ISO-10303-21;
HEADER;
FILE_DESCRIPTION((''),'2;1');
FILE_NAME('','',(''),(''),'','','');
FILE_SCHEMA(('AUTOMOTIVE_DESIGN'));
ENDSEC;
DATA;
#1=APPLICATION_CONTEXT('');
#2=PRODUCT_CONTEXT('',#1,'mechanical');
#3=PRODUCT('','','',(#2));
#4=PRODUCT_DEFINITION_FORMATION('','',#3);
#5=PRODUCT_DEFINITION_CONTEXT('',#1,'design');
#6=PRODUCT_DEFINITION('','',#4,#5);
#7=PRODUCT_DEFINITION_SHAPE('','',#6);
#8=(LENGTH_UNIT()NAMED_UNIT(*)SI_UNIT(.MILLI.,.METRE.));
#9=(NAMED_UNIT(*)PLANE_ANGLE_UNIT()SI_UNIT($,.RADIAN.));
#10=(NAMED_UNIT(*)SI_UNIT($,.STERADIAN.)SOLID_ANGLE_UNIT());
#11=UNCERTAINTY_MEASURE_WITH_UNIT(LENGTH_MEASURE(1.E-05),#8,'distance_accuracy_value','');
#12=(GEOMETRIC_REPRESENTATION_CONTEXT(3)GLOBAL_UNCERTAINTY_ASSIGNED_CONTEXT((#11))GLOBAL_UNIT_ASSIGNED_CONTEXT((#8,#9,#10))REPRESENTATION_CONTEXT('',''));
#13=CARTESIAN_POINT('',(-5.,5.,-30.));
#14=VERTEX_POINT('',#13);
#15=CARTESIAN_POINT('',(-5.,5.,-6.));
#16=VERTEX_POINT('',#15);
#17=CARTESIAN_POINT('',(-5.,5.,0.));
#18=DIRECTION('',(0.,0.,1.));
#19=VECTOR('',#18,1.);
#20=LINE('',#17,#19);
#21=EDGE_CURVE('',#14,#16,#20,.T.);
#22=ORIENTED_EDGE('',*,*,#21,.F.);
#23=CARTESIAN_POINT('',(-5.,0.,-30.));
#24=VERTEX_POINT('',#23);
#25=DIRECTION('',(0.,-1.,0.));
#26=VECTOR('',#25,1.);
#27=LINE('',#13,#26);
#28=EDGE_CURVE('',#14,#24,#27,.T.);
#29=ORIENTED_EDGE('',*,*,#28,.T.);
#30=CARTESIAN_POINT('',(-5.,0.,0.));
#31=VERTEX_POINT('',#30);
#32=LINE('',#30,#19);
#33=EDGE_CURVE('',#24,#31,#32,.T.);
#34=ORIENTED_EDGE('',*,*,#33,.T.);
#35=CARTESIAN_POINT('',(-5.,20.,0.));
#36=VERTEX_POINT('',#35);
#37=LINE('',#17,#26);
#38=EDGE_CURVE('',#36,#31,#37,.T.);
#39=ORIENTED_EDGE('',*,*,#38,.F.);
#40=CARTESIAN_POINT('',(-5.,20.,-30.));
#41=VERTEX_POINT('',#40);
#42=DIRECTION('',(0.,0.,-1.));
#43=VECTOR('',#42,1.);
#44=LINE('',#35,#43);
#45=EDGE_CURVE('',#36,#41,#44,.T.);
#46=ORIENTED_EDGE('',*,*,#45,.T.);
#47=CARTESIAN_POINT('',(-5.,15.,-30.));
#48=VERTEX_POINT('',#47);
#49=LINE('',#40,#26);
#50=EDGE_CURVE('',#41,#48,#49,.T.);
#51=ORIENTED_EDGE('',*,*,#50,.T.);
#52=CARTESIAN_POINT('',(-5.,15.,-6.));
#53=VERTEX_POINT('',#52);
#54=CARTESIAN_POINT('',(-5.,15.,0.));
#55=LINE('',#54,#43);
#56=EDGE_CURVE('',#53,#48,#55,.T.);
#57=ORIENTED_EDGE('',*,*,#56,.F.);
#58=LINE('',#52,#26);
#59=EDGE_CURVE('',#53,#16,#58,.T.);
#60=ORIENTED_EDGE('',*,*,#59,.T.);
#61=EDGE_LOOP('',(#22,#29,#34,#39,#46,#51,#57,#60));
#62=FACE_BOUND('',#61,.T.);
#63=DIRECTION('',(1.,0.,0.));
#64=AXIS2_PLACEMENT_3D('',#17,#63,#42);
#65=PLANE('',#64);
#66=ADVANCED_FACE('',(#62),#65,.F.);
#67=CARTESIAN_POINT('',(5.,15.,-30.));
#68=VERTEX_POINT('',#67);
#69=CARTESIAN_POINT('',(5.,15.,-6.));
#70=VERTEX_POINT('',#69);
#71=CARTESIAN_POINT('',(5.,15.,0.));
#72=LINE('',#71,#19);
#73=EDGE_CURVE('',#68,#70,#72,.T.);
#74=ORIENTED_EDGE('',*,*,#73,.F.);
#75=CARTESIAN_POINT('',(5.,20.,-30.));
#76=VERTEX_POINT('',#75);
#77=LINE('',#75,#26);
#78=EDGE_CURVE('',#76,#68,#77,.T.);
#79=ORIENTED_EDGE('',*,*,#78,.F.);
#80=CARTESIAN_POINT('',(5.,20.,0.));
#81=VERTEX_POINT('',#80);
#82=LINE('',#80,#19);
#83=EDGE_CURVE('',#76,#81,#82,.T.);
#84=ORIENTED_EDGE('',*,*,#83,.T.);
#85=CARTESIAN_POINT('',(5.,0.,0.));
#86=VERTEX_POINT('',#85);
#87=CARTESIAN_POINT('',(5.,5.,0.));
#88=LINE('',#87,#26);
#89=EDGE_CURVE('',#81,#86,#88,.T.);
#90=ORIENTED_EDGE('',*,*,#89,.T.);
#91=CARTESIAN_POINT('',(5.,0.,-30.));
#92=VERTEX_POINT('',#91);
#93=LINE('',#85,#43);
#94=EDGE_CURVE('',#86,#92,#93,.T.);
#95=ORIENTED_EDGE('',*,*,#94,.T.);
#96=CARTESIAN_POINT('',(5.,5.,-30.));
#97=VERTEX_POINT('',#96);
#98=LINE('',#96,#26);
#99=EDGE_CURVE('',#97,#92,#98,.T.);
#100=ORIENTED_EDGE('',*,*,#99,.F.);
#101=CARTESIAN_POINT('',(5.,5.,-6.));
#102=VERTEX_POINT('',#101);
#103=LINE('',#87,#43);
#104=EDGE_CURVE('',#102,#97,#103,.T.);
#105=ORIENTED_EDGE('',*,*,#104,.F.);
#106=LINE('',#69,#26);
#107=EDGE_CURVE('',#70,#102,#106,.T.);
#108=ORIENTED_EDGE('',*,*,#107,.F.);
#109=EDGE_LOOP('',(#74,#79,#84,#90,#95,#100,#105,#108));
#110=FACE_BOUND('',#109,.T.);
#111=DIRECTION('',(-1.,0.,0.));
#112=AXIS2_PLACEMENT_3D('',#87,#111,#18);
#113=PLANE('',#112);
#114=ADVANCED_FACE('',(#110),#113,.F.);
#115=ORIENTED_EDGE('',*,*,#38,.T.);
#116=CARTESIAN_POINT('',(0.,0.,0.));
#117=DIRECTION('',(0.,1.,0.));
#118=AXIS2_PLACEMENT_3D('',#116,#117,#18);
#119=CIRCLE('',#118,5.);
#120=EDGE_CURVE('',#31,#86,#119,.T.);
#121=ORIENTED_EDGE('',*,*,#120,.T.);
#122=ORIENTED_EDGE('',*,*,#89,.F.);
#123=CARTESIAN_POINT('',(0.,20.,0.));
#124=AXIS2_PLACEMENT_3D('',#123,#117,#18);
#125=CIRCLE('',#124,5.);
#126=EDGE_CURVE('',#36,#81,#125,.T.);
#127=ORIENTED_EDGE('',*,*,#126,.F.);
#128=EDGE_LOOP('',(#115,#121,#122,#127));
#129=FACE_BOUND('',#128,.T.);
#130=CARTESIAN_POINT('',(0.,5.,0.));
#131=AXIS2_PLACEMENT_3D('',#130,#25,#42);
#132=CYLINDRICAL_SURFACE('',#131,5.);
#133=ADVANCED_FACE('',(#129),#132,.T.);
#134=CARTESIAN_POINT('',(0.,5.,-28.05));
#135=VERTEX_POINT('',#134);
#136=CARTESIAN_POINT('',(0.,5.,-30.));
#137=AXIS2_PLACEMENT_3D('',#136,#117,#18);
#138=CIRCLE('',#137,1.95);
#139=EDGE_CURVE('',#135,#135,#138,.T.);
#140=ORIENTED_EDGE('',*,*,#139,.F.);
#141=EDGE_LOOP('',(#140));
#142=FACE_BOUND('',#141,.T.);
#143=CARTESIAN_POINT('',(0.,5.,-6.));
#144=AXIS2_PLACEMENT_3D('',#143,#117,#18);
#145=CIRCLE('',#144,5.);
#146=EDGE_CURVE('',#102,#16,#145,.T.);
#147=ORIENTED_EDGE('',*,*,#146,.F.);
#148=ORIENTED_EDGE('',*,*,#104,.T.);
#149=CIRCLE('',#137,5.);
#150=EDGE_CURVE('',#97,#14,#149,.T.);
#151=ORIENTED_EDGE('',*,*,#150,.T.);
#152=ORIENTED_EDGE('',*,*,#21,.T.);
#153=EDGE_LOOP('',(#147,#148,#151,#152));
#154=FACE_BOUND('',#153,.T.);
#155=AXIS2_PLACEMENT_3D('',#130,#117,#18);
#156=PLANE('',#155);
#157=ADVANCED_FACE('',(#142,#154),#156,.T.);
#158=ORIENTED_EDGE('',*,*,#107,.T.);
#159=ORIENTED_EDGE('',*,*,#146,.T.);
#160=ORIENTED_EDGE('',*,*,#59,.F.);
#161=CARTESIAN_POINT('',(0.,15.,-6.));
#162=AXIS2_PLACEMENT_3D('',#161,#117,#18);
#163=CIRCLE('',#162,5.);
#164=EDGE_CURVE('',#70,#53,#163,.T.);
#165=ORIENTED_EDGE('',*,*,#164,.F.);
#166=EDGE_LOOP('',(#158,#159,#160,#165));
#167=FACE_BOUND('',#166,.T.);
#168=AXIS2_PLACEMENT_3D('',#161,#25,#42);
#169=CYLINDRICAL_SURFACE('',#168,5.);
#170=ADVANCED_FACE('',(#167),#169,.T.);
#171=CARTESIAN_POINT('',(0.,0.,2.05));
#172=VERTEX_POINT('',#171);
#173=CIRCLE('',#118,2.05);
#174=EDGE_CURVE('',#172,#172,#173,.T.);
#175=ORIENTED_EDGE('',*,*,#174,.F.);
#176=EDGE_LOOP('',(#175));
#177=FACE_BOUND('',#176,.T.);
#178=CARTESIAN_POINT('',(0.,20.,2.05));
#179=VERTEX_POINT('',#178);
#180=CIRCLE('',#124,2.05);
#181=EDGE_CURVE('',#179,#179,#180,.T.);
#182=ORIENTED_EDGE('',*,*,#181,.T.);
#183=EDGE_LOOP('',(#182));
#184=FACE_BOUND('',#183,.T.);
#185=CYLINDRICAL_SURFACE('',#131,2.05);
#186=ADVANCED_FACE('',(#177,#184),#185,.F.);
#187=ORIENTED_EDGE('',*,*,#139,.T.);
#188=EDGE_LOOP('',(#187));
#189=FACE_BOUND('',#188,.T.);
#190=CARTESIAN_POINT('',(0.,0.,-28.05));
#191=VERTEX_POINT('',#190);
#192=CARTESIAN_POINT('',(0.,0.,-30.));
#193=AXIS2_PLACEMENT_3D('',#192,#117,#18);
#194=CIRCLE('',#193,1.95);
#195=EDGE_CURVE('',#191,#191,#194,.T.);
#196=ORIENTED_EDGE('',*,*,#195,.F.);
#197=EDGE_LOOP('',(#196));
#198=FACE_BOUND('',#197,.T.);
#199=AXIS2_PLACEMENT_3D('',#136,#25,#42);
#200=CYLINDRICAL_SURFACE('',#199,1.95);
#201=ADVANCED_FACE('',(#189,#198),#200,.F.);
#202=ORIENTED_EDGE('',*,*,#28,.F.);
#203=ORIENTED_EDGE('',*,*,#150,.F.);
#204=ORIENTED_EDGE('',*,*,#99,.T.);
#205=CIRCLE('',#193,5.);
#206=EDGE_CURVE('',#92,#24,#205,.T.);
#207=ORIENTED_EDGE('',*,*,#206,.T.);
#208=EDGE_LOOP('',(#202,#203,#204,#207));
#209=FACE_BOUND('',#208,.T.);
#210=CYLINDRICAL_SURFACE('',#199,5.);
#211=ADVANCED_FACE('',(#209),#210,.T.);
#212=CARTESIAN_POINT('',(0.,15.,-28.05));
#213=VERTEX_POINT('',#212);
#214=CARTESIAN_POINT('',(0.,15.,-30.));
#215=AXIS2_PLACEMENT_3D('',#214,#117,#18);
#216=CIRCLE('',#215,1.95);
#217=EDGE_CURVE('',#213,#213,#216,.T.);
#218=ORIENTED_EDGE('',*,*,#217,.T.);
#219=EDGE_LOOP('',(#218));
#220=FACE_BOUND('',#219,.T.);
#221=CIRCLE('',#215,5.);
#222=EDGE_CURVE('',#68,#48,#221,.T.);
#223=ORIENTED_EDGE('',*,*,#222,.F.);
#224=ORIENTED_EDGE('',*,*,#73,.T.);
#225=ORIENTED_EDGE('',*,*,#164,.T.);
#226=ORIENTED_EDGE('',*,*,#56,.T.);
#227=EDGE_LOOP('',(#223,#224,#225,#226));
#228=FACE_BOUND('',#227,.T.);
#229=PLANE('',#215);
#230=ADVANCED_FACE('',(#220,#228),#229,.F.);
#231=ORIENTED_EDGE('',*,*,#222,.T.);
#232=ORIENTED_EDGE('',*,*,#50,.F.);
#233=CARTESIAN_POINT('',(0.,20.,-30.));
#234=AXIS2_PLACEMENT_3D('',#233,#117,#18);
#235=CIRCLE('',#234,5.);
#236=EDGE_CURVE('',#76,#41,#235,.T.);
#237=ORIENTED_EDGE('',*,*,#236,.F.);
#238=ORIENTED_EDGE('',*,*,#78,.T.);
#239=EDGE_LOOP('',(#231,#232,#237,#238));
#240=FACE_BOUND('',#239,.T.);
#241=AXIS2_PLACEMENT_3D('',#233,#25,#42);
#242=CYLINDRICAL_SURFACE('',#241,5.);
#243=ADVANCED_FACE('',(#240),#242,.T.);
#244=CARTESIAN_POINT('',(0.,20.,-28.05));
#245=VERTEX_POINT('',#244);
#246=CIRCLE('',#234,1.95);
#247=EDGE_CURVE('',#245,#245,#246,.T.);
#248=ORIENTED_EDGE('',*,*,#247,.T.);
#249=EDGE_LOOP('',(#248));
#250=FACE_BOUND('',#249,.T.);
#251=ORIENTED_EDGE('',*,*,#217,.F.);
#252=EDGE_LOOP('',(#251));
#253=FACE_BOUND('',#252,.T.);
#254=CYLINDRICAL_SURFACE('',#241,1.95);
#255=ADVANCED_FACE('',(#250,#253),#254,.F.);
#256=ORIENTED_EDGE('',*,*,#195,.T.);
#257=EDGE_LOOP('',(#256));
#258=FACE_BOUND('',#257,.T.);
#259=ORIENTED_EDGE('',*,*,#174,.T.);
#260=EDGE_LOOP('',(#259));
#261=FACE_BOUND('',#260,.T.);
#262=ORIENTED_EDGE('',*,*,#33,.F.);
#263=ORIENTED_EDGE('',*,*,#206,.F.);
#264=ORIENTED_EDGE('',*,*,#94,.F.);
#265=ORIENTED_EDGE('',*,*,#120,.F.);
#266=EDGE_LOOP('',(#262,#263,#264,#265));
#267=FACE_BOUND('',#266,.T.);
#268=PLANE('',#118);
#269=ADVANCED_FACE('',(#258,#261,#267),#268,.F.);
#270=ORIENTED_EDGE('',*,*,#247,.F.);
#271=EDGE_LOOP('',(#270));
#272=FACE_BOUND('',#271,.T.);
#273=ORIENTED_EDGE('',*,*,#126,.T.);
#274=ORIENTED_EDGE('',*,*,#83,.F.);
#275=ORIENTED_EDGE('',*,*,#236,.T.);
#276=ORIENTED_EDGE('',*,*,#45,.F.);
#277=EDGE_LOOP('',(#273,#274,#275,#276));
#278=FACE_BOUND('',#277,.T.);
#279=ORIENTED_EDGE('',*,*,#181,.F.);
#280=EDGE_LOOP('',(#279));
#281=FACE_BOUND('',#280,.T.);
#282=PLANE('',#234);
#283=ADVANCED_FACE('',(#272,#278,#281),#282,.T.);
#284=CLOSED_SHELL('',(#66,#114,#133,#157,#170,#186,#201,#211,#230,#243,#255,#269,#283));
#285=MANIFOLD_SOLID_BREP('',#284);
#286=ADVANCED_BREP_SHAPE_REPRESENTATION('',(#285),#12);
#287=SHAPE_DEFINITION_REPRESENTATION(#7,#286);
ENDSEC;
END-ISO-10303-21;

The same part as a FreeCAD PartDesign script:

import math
import FreeCAD as App
import Part
import Sketcher
from FreeCAD import Vector

doc = App.newDocument("Part")
body = doc.addObject("PartDesign::Body", "Body")

sketch1 = body.newObject("Sketcher::SketchObject", "Sketch")
sketch1.AttachmentSupport = (doc.getObject("XZ_Plane"), [""])
sketch1.MapMode = "FlatFace"
sketch1.addGeometry(Part.LineSegment(Vector(-5, -30, 0), Vector(-5, 0, 0)), False)
sketch1.addGeometry(Part.ArcOfCircle(Part.Circle(Vector(0, 0, 0), Vector(0, 0, 1), 5), math.radians(0), math.radians(180)), False)
sketch1.addGeometry(Part.LineSegment(Vector(5, 0, 0), Vector(5, -30, 0)), False)
sketch1.addGeometry(Part.ArcOfCircle(Part.Circle(Vector(0, -30, 0), Vector(0, 0, 1), 5), math.radians(180), math.radians(360)), False)
sketch1.addGeometry(Part.Circle(Vector(0, 0, 0), Vector(0, 0, 1), 2.05), False)
sketch1.addGeometry(Part.Circle(Vector(0, -30, 0), Vector(0, 0, 1), 1.95), False)
sketch1.addConstraint(Sketcher.Constraint("Tangent", 0, 2, 1, 2))
sketch1.addConstraint(Sketcher.Constraint("Tangent", 1, 1, 2, 1))
sketch1.addConstraint(Sketcher.Constraint("Tangent", 2, 2, 3, 2))
sketch1.addConstraint(Sketcher.Constraint("Tangent", 3, 1, 0, 1))
sketch1.addConstraint(Sketcher.Constraint("Vertical", 0))
sketch1.addConstraint(Sketcher.Constraint("Vertical", 2))
sketch1.addConstraint(Sketcher.Constraint("Coincident", 1, 3, -1, 1))
sketch1.addConstraint(Sketcher.Constraint("Coincident", 4, 3, -1, 1))
sketch1.addConstraint(Sketcher.Constraint("Coincident", 5, 3, 3, 3))
sketch1.addConstraint(Sketcher.Constraint("Radius", 1, 5.0))
sketch1.addConstraint(Sketcher.Constraint("Diameter", 4, 4.1))
sketch1.addConstraint(Sketcher.Constraint("Diameter", 5, 3.9))
sketch1.addConstraint(Sketcher.Constraint("DistanceY", 0, 1, 0, 2, 30.0))
pad1 = body.newObject("PartDesign::Pad", "Pad")
pad1.Profile = sketch1
pad1.Length = 5
pad1.Reversed = True

sketch2 = body.newObject("Sketcher::SketchObject", "Sketch001")
sketch2.AttachmentSupport = (doc.getObject("XZ_Plane"), [""])
sketch2.MapMode = "FlatFace"
sketch2.AttachmentOffset = App.Placement(Vector(0, 0, -5), App.Rotation())
sketch2.addGeometry(Part.LineSegment(Vector(-5, -6, 0), Vector(-5, 0, 0)), False)
sketch2.addGeometry(Part.ArcOfCircle(Part.Circle(Vector(0, 0, 0), Vector(0, 0, 1), 5), math.radians(0), math.radians(180)), False)
sketch2.addGeometry(Part.LineSegment(Vector(5, 0, 0), Vector(5, -6, 0)), False)
sketch2.addGeometry(Part.ArcOfCircle(Part.Circle(Vector(0, -6, 0), Vector(0, 0, 1), 5), math.radians(180), math.radians(360)), False)
sketch2.addGeometry(Part.Circle(Vector(0, 0, 0), Vector(0, 0, 1), 2.05), False)
sketch2.addConstraint(Sketcher.Constraint("Tangent", 0, 2, 1, 2))
sketch2.addConstraint(Sketcher.Constraint("Tangent", 1, 1, 2, 1))
sketch2.addConstraint(Sketcher.Constraint("Tangent", 2, 2, 3, 2))
sketch2.addConstraint(Sketcher.Constraint("Tangent", 3, 1, 0, 1))
sketch2.addConstraint(Sketcher.Constraint("Vertical", 0))
sketch2.addConstraint(Sketcher.Constraint("Vertical", 2))
sketch2.addConstraint(Sketcher.Constraint("Coincident", 1, 3, -1, 1))
sketch2.addConstraint(Sketcher.Constraint("Coincident", 4, 3, -1, 1))
sketch2.addConstraint(Sketcher.Constraint("Radius", 1, 5.0))
sketch2.addConstraint(Sketcher.Constraint("Diameter", 4, 4.1))
sketch2.addConstraint(Sketcher.Constraint("DistanceY", 0, 1, 0, 2, 6.0))
pad2 = body.newObject("PartDesign::Pad", "Pad001")
pad2.Profile = sketch2
pad2.Length = 10
pad2.Reversed = True

sketch3 = body.newObject("Sketcher::SketchObject", "Sketch002")
sketch3.AttachmentSupport = (doc.getObject("XZ_Plane"), [""])
sketch3.MapMode = "FlatFace"
sketch3.AttachmentOffset = App.Placement(Vector(0, 0, -15), App.Rotation())
sketch3.addGeometry(Part.LineSegment(Vector(-5, -30, 0), Vector(-5, 0, 0)), False)
sketch3.addGeometry(Part.ArcOfCircle(Part.Circle(Vector(0, 0, 0), Vector(0, 0, 1), 5), math.radians(0), math.radians(180)), False)
sketch3.addGeometry(Part.LineSegment(Vector(5, 0, 0), Vector(5, -30, 0)), False)
sketch3.addGeometry(Part.ArcOfCircle(Part.Circle(Vector(0, -30, 0), Vector(0, 0, 1), 5), math.radians(180), math.radians(360)), False)
sketch3.addGeometry(Part.Circle(Vector(0, -30, 0), Vector(0, 0, 1), 1.95), False)
sketch3.addGeometry(Part.Circle(Vector(0, 0, 0), Vector(0, 0, 1), 2.05), False)
sketch3.addConstraint(Sketcher.Constraint("Tangent", 0, 2, 1, 2))
sketch3.addConstraint(Sketcher.Constraint("Tangent", 1, 1, 2, 1))
sketch3.addConstraint(Sketcher.Constraint("Tangent", 2, 2, 3, 2))
sketch3.addConstraint(Sketcher.Constraint("Tangent", 3, 1, 0, 1))
sketch3.addConstraint(Sketcher.Constraint("Vertical", 0))
sketch3.addConstraint(Sketcher.Constraint("Vertical", 2))
sketch3.addConstraint(Sketcher.Constraint("Coincident", 1, 3, -1, 1))
sketch3.addConstraint(Sketcher.Constraint("Coincident", 5, 3, -1, 1))
sketch3.addConstraint(Sketcher.Constraint("Coincident", 4, 3, 3, 3))
sketch3.addConstraint(Sketcher.Constraint("Radius", 1, 5.0))
sketch3.addConstraint(Sketcher.Constraint("Diameter", 4, 3.9))
sketch3.addConstraint(Sketcher.Constraint("Diameter", 5, 4.1))
sketch3.addConstraint(Sketcher.Constraint("DistanceY", 0, 1, 0, 2, 30.0))
pad3 = body.newObject("PartDesign::Pad", "Pad002")
pad3.Profile = sketch3
pad3.Length = 5
pad3.Reversed = True

doc.recompute()
